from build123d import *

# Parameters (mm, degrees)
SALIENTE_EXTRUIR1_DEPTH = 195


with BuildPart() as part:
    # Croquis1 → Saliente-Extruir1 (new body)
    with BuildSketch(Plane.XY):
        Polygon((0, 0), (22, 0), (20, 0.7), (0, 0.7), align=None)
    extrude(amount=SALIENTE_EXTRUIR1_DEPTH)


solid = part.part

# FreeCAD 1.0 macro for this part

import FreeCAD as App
import Part
import Sketcher

doc = App.newDocument("Part")
body = doc.addObject("PartDesign::Body", "Body")

# Sketch on XY plane
sketch1 = doc.addObject("Sketcher::SketchObject", "Sketch")
body.addObject(sketch1)
sketch1.AttachmentSupport = (doc.XY_Plane, [""])
sketch1.MapMode = "FlatFace"
sketch1.addGeometry([
    Part.LineSegment(App.Vector(0, 0, 0), App.Vector(22, 0, 0)),
    Part.LineSegment(App.Vector(22, 0, 0), App.Vector(20, 0.7, 0)),
    Part.LineSegment(App.Vector(20, 0.7, 0), App.Vector(0, 0.7, 0)),
    Part.LineSegment(App.Vector(0, 0.7, 0), App.Vector(0, 0, 0)),
], False)
sketch1.addConstraint([
    Sketcher.Constraint("Coincident", 0, 2, 1, 1),
    Sketcher.Constraint("Coincident", 1, 2, 2, 1),
    Sketcher.Constraint("Coincident", 2, 2, 3, 1),
    Sketcher.Constraint("Coincident", 3, 2, 0, 1),
    Sketcher.Constraint("Horizontal", 0),
    Sketcher.Constraint("Horizontal", 2),
    Sketcher.Constraint("Vertical", 3),
    Sketcher.Constraint("Coincident", 3, 2, -1, 1),
    Sketcher.Constraint("DistanceX", 0, 1, 0, 2, 22.0),
    Sketcher.Constraint("DistanceX", 2, 2, 2, 1, 20.0),
    Sketcher.Constraint("DistanceY", 3, 2, 3, 1, 0.7),
])
pad1 = doc.addObject("PartDesign::Pad", "Pad")
body.addObject(pad1)
pad1.Profile = sketch1
pad1.Length = 195

doc.recompute()
